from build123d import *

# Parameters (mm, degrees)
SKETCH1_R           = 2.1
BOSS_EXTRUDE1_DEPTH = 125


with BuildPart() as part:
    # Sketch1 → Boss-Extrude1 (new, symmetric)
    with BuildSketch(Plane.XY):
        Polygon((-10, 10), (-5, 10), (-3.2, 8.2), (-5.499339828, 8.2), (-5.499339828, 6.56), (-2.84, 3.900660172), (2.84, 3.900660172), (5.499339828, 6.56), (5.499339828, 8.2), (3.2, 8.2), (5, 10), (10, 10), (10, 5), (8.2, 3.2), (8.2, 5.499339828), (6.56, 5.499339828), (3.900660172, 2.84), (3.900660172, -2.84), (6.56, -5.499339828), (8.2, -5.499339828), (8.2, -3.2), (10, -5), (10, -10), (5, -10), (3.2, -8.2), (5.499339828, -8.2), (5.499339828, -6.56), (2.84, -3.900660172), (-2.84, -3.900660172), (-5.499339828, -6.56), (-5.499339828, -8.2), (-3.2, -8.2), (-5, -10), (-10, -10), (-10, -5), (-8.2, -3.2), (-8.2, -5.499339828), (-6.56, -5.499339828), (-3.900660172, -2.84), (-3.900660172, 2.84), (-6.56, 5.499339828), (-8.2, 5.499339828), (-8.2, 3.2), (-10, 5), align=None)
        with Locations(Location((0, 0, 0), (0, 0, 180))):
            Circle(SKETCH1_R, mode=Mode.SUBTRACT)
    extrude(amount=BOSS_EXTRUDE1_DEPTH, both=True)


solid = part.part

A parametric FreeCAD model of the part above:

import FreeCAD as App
import Part
import Sketcher
from FreeCAD import Vector


def add_polygon(sketch, points):
    """Adds a closed chain of lines whose ends are joined by coincident constraints."""
    first, n = sketch.GeometryCount, len(points)
    for a, b in zip(points, points[1:] + points[:1]):
        sketch.addGeometry(Part.LineSegment(App.Vector(*a, 0), App.Vector(*b, 0)), False)
    for i in range(n):
        sketch.addConstraint(Sketcher.Constraint("Coincident", first + i, 2, first + (i + 1) % n, 1))

doc = App.newDocument("Part")
params = doc.addObject("Spreadsheet::Sheet", "Params")
for row, (alias, value) in enumerate([
    ("sketch1_diameter", "4.2 mm"),
    ("sketch1_width", "5 mm"),
    ("sketch1_width2", "1.64 mm"),
    ("sketch1_width3", "5.68 mm"),
    ("pad1_length", "250 mm"),
], start=1):
    params.set(f"A{row}", alias)
    params.set(f"B{row}", "=" + value)
    params.setAlias(f"B{row}", alias)

body = doc.addObject("PartDesign::Body", "Body")

sketch1 = body.newObject("Sketcher::SketchObject", "Sketch")
sketch1.AttachmentSupport = (doc.getObject("XY_Plane"), [""])
sketch1.MapMode = "FlatFace"
add_polygon(sketch1, [(-5, 10), (-10, 10), (-10, 5), (-8.2, 3.2), (-8.2, 5.5), (-6.6, 5.5), (-3.9, 2.8), (-3.9, -2.8), (-6.6, -5.5), (-8.2, -5.5), (-8.2, -3.2), (-10, -5), (-10, -10), (-5, -10), (-3.2, -8.2), (-5.5, -8.2), (-5.5, -6.6), (-2.8, -3.9), (2.8, -3.9), (5.5, -6.6), (5.5, -8.2), (3.2, -8.2), (5, -10), (10, -10), (10, -5), (8.2, -3.2), (8.2, -5.5), (6.6, -5.5), (3.9, -2.8), (3.9, 2.8), (6.6, 5.5), (8.2, 5.5), (8.2, 3.2), (10, 5), (10, 10), (5, 10), (3.2, 8.2), (5.5, 8.2), (5.5, 6.6), (2.8, 3.9), (-2.8, 3.9), (-5.5, 6.6), (-5.5, 8.2), (-3.2, 8.2)])
sketch1.addGeometry(Part.Circle(Vector(0, 0, 0), Vector(0, 0, 1), 2.1), False)
sketch1.addConstraint([
    Sketcher.Constraint("Horizontal", 0),
    Sketcher.Constraint("Vertical", 1),
    Sketcher.Constraint("Vertical", 3),
    Sketcher.Constraint("Horizontal", 4),
    Sketcher.Constraint("Vertical", 6),
    Sketcher.Constraint("Horizontal", 8),
    Sketcher.Constraint("Vertical", 9),
    Sketcher.Constraint("Vertical", 11),
    Sketcher.Constraint("Horizontal", 12),
    Sketcher.Constraint("Horizontal", 14),
    Sketcher.Constraint("Vertical", 15),
    Sketcher.Constraint("Horizontal", 17),
    Sketcher.Constraint("Vertical", 19),
    Sketcher.Constraint("Horizontal", 20),
    Sketcher.Constraint("Horizontal", 22),
    Sketcher.Constraint("Vertical", 23),
    Sketcher.Constraint("Vertical", 25),
    Sketcher.Constraint("Horizontal", 26),
    Sketcher.Constraint("Vertical", 28),
    Sketcher.Constraint("Horizontal", 30),
    Sketcher.Constraint("Vertical", 31),
    Sketcher.Constraint("Vertical", 33),
    Sketcher.Constraint("Horizontal", 34),
    Sketcher.Constraint("Horizontal", 36),
    Sketcher.Constraint("Vertical", 37),
    Sketcher.Constraint("Horizontal", 39),
    Sketcher.Constraint("Vertical", 41),
    Sketcher.Constraint("Horizontal", 42),
    Sketcher.Constraint("Coincident", 44, 3, -1, 1),
    Sketcher.Constraint("Symmetric", 0, 2, 22, 2, -1, 1),
    Sketcher.Constraint("Symmetric", 2, 2, 24, 2, -1, 1),
    Sketcher.Constraint("Symmetric", 4, 2, 26, 2, -1, 1),
    Sketcher.Constraint("Symmetric", 5, 2, 27, 2, -1, 1),
    Sketcher.Constraint("Symmetric", 7, 2, 29, 2, -1, 1),
    Sketcher.Constraint("Symmetric", 9, 2, 31, 2, -1, 1),
    Sketcher.Constraint("Symmetric", 10, 2, 32, 2, -1, 1),
    Sketcher.Constraint("Symmetric", 12, 2, 34, 2, -1, 1),
    Sketcher.Constraint("Symmetric", 13, 2, 35, 2, -1, 1),
    Sketcher.Constraint("Symmetric", 15, 2, 37, 2, -1, 1),
    Sketcher.Constraint("Symmetric", 16, 2, 38, 2, -1, 1),
    Sketcher.Constraint("Symmetric", 18, 2, 40, 2, -1, 1),
    Sketcher.Constraint("Symmetric", 20, 2, 42, 2, -1, 1),
    Sketcher.Constraint("Symmetric", 15, 2, 18, 2, -2),
    Sketcher.Constraint("Symmetric", 13, 2, 20, 2, -2),
    Sketcher.Constraint("Symmetric", 12, 2, 21, 2, -2),
    Sketcher.Constraint("Symmetric", 10, 2, 23, 2, -2),
    Sketcher.Constraint("Symmetric", 9, 2, 24, 2, -2),
    Sketcher.Constraint("Symmetric", 7, 2, 26, 2, -2),
    Sketcher.Constraint("Parallel", 2, 5),
    Sketcher.Constraint("Perpendicular", 5, 7),
    Sketcher.Constraint("Parallel", 7, 10),
    Sketcher.Constraint("Parallel", 10, 13),
    Sketcher.Constraint("Parallel", 13, 16),
    Sketcher.Constraint("Perpendicular", 16, 18),
    Sketcher.Constraint("Parallel", 18, 21),
    Sketcher.Constraint("Perpendicular", 27, 29),
    Sketcher.Constraint("Perpendicular", 38, 40),
    Sketcher.Constraint("Parallel", 40, 43),
    Sketcher.Constraint("Equal", 34, 1),
    Sketcher.Constraint("Equal", 42, 3),
    Sketcher.Constraint("Equal", 39, 6),
    Sketcher.Constraint("Equal", 30, 15),
    Sketcher.Constraint("Equal", 10, 13),
    Sketcher.Constraint("Equal", 7, 16),
    Sketcher.Constraint("Diameter", 44, 4.2),
    Sketcher.Constraint("DistanceX", 0, 2, 0, 1, 5.0),
    Sketcher.Constraint("DistanceX", 0, 2, -1, 1, 10.0),
    Sketcher.Constraint("DistanceX", 4, 1, 4, 2, 1.64),
    Sketcher.Constraint("DistanceX", 17, 1, 17, 2, 5.68),
    Sketcher.Constraint("DistanceX", 2, 2, -1, 1, 8.2),
    Sketcher.Constraint("DistanceX", 14, 2, 14, 1, 2.29934),
])
sketch1.setExpression("Constraints[108]", "Params.sketch1_diameter")
sketch1.setExpression("Constraints[109]", "Params.sketch1_width")
sketch1.setExpression("Constraints[111]", "Params.sketch1_width2")
sketch1.setExpression("Constraints[112]", "Params.sketch1_width3")
pad1 = body.newObject("PartDesign::Pad", "Pad")
pad1.Profile = sketch1
pad1.setExpression("Length", "Params.pad1_length")
pad1.Midplane = True

doc.recompute()
